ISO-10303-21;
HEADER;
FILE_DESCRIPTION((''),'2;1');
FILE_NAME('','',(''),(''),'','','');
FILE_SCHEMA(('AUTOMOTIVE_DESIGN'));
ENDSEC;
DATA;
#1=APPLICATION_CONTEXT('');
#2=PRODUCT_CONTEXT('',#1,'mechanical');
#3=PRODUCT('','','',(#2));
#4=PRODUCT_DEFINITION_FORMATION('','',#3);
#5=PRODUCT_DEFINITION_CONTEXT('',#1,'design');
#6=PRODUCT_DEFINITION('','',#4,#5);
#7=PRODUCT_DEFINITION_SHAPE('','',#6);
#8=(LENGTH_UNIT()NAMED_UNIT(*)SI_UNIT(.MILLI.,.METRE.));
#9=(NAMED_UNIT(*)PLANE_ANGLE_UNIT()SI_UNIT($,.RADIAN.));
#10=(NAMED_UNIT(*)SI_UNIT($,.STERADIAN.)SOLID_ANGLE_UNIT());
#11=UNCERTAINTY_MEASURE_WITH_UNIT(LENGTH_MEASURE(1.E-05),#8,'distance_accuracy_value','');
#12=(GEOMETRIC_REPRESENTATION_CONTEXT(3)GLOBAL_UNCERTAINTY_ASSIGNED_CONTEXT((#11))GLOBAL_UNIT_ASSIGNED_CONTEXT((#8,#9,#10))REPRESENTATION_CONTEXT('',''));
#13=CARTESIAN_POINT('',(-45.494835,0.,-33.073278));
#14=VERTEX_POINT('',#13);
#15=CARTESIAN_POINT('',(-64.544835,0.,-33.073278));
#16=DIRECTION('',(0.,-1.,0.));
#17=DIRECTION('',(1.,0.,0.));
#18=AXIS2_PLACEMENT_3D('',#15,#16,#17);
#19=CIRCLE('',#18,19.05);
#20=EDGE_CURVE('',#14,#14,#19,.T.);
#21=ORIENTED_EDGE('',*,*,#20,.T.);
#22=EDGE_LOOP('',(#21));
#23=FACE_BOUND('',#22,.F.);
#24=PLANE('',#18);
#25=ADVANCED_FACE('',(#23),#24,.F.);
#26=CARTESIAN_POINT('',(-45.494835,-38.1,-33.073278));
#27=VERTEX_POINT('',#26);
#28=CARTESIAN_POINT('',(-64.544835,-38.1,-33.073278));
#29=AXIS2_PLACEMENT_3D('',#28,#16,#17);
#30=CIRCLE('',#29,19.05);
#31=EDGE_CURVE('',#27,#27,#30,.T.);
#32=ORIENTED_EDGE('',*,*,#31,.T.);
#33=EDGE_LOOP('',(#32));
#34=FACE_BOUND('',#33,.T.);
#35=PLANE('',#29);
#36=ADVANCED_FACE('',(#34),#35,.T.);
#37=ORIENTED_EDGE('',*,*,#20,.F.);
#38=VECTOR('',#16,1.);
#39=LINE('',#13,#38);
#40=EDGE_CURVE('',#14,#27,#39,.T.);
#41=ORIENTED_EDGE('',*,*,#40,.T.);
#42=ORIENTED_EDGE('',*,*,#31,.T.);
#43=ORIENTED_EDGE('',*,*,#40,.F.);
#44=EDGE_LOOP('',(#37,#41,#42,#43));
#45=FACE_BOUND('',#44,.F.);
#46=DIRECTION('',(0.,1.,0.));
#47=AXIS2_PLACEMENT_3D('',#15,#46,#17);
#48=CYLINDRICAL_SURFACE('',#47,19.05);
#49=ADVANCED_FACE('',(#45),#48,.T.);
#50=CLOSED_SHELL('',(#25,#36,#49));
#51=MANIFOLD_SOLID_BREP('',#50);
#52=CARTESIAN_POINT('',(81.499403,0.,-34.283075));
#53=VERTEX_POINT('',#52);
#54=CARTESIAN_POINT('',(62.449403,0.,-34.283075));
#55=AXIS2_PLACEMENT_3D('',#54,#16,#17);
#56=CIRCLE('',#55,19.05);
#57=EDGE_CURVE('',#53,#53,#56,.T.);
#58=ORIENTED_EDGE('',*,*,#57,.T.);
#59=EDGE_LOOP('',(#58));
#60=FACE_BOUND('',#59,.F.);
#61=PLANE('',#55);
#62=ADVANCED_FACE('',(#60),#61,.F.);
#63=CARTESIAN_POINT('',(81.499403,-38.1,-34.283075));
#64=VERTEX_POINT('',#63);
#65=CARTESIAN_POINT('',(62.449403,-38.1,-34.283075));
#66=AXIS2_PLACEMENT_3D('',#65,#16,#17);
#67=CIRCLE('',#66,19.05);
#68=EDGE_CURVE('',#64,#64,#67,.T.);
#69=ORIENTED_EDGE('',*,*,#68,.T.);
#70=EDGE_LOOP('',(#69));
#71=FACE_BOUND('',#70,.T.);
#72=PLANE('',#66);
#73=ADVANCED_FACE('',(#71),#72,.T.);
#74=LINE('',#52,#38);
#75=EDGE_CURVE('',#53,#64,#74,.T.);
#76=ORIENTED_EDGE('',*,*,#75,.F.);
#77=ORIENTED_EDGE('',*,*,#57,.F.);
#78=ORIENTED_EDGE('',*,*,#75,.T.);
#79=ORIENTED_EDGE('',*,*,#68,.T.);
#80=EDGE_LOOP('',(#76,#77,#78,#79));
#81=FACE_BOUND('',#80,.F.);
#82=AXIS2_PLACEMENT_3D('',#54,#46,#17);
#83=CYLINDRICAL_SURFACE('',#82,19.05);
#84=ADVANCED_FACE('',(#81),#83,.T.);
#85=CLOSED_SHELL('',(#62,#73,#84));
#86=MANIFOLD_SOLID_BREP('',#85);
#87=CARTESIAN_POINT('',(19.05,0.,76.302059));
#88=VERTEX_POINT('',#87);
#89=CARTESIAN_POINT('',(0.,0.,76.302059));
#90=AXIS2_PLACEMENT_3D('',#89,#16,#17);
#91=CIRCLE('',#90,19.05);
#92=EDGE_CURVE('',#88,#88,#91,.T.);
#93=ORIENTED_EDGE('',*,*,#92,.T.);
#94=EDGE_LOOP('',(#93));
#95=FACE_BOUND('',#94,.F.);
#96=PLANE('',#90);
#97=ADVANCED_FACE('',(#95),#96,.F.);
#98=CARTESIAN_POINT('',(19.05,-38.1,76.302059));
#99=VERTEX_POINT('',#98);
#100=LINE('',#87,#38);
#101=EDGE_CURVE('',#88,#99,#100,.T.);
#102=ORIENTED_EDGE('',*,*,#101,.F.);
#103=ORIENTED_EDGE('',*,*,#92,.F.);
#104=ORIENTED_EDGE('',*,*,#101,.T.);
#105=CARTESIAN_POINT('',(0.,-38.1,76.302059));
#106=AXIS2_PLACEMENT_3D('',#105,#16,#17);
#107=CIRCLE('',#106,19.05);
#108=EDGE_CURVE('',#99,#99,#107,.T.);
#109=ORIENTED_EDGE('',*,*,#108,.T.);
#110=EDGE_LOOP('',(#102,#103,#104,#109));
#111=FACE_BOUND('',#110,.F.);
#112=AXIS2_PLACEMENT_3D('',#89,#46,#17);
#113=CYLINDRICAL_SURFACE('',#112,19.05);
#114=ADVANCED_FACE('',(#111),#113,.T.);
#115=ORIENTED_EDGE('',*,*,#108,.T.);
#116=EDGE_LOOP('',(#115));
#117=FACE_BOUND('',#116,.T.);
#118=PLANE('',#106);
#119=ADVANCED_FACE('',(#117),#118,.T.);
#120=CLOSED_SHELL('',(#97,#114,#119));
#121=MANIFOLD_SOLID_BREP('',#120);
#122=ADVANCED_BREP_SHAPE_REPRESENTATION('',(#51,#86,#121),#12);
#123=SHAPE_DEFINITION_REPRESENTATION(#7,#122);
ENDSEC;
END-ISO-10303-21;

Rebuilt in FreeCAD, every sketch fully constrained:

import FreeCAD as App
import Part
import Sketcher

V = App.Vector
Q = App.Units.Quantity

doc = App.newDocument("Part")
body = doc.addObject("PartDesign::Body", "Body")
body.AllowCompound = True

# Sketch on XZ plane
sketch1 = body.newObject("Sketcher::SketchObject", "Sketch")
sketch1.AttachmentSupport = (doc.getObject("XZ_Plane"), [""])
sketch1.MapMode = "FlatFace"
sketch1.addGeometry(Part.Circle(V(0, 76, 0), V(0, 0, 1), 19), False)
sketch1.addGeometry(Part.Circle(V(-65, -33, 0), V(0, 0, 1), 19), False)
sketch1.addGeometry(Part.Circle(V(62, -34, 0), V(0, 0, 1), 19), False)
sketch1.addConstraint(Sketcher.Constraint("Equal", 0, 1))
sketch1.addConstraint(Sketcher.Constraint("Equal", 1, 2))
sketch1.addConstraint(Sketcher.Constraint("PointOnObject", 0, 3, -2))
sketch1.addConstraint(Sketcher.Constraint("Diameter", 0, Q("1.5 in")))
sketch1.addConstraint(Sketcher.Constraint("DistanceY", -1, 1, 0, 3, Q("76.302059 mm")))
sketch1.addConstraint(Sketcher.Constraint("DistanceY", 1, 3, -1, 1, Q("33.073278 mm")))
sketch1.addConstraint(Sketcher.Constraint("DistanceX", 1, 3, -1, 1, Q("64.544835 mm")))
sketch1.addConstraint(Sketcher.Constraint("DistanceX", -1, 1, 2, 3, Q("62.449403 mm")))
sketch1.addConstraint(Sketcher.Constraint("DistanceY", 2, 3, -1, 1, Q("34.283075 mm")))
pad1 = body.newObject("PartDesign::Pad", "Pad")
pad1.Profile = sketch1
pad1.Length = Q("1.5 in")

doc.recompute()
